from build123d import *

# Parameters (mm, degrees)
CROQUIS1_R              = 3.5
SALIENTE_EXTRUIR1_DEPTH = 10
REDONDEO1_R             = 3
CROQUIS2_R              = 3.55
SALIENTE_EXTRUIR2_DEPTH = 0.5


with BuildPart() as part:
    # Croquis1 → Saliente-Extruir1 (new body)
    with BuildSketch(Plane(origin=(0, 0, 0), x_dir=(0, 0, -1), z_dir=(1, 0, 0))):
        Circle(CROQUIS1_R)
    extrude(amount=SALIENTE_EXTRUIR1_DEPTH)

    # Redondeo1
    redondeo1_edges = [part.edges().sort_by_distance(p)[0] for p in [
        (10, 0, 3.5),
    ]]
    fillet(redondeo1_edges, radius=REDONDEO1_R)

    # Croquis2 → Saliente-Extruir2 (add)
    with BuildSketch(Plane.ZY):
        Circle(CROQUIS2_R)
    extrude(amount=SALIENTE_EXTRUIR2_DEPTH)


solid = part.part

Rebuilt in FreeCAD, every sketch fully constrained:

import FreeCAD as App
import Part
import Sketcher

V = App.Vector


def edges_at(feature, points):
    """Names of the edges that pass closest to the given points."""
    edges = feature.Shape.Edges
    near = lambda p: min(range(len(edges)), key=lambda i: edges[i].distToShape(Part.Vertex(*p))[0])
    return sorted({f"Edge{near(p) + 1}" for p in points})

doc = App.newDocument("Part")
body = doc.addObject("PartDesign::Body", "Body")

# Sketch on YZ plane
sketch1 = body.newObject("Sketcher::SketchObject", "Sketch")
sketch1.AttachmentSupport = (doc.getObject("YZ_Plane"), [""])
sketch1.MapMode = "FlatFace"
sketch1.addGeometry(Part.Circle(V(0, 0, 0), V(0, 0, 1), 3.5), False)
sketch1.addConstraint(Sketcher.Constraint("Coincident", 0, 3, -1, 1))
sketch1.addConstraint(Sketcher.Constraint("Diameter", 0, 7.0))
pad1 = body.newObject("PartDesign::Pad", "Pad")
pad1.Profile = sketch1
pad1.Length = 10
doc.recompute()

fillet = body.newObject("PartDesign::Fillet", "Fillet")
fillet.Base = (pad1, edges_at(pad1, [(10, 0, 3.5)]))
fillet.Radius = 3

# Sketch on YZ plane
sketch2 = body.newObject("Sketcher::SketchObject", "Sketch001")
sketch2.AttachmentSupport = (doc.getObject("YZ_Plane"), [""])
sketch2.MapMode = "FlatFace"
sketch2.addGeometry(Part.Circle(V(0, 0, 0), V(0, 0, 1), 3.5), False)
sketch2.addConstraint(Sketcher.Constraint("Coincident", 0, 3, -1, 1))
sketch2.addConstraint(Sketcher.Constraint("Diameter", 0, 7.1))
pad2 = body.newObject("PartDesign::Pad", "Pad001")
pad2.Profile = sketch2
pad2.Length = 0.5
pad2.Reversed = True

doc.recompute()
